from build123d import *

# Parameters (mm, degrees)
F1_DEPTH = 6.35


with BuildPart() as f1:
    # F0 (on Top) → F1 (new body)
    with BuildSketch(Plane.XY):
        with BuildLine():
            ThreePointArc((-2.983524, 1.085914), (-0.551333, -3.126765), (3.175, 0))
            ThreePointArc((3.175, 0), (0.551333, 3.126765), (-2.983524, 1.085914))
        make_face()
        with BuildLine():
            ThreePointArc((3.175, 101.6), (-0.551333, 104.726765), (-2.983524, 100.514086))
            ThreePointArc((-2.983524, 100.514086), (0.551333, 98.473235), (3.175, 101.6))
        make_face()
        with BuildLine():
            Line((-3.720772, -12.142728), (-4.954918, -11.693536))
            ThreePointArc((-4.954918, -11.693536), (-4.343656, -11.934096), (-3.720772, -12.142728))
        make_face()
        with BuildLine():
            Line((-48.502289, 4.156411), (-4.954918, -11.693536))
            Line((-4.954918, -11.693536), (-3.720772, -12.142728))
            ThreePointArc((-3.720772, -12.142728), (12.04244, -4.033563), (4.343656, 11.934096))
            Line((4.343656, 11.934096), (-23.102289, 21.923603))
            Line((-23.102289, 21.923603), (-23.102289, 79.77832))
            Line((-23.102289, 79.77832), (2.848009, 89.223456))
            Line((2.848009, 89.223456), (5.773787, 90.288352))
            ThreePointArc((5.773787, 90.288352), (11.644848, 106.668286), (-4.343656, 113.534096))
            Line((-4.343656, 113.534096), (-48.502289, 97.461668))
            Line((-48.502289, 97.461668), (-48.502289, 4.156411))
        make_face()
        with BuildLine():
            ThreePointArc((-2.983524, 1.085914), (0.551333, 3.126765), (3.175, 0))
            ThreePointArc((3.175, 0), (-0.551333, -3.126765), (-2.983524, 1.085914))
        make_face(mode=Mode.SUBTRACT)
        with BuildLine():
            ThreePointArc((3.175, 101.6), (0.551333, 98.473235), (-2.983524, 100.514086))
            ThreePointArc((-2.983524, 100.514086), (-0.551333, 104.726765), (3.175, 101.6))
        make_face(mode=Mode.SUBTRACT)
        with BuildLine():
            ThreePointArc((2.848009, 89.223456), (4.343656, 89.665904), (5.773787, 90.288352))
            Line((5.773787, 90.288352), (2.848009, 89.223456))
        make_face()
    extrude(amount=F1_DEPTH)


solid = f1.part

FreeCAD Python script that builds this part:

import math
import FreeCAD as App
import Part
import Sketcher

V = App.Vector
Q = App.Units.Quantity

doc = App.newDocument("Part")
body = doc.addObject("PartDesign::Body", "Body")

# Sketch on XY plane
sketch1 = doc.addObject("Sketcher::SketchObject", "Sketch")
body.addObject(sketch1)
sketch1.AttachmentSupport = (doc.XY_Plane, [""])
sketch1.MapMode = "FlatFace"
sketch1.addGeometry(Part.LineSegment(V(-48.5, 4.2, 0), V(-5, -11.7, 0)), False)
sketch1.addGeometry(Part.ArcOfCircle(Part.Circle(V(0, 0, 0), V(0, 0, 1), 12.7), math.radians(-112.96), math.radians(-107.04)), False)
sketch1.addGeometry(Part.ArcOfCircle(Part.Circle(V(0, 0, 0), V(0, 0, 1), 12.7), math.radians(-107), math.radians(70)), False)
sketch1.addGeometry(Part.LineSegment(V(4.3, 11.9, 0), V(-23.1, 21.9, 0)), False)
sketch1.addGeometry(Part.LineSegment(V(-23.1, 21.9, 0), V(-23.1, 79.8, 0)), False)
sketch1.addGeometry(Part.LineSegment(V(-23.1, 79.8, 0), V(2.8, 89.2, 0)), False)
sketch1.addGeometry(Part.ArcOfCircle(Part.Circle(V(0, 101.6, 0), V(0, 0, 1), 12.7), math.radians(-77.04), math.radians(-62.96)), False)
sketch1.addGeometry(Part.ArcOfCircle(Part.Circle(V(0, 101.6, 0), V(0, 0, 1), 12.7), math.radians(-63), math.radians(110)), False)
sketch1.addGeometry(Part.LineSegment(V(-4.3, 113.5, 0), V(-48.5, 97.5, 0)), False)
sketch1.addGeometry(Part.LineSegment(V(-48.5, 97.5, 0), V(-48.5, 4.2, 0)), False)
sketch1.addGeometry(Part.ArcOfCircle(Part.Circle(V(0, 0, 0), V(0, 0, 1), 3.2), math.radians(160), math.radians(360)), False)
sketch1.addGeometry(Part.ArcOfCircle(Part.Circle(V(0, 0, 0), V(0, 0, 1), 3.2), math.radians(0), math.radians(160)), False)
sketch1.addGeometry(Part.ArcOfCircle(Part.Circle(V(0, 101.6, 0), V(0, 0, 1), 3.2), math.radians(0), math.radians(200)), False)
sketch1.addGeometry(Part.ArcOfCircle(Part.Circle(V(0, 101.6, 0), V(0, 0, 1), 3.2), math.radians(-160), math.radians(0)), False)
sketch1.addConstraint(Sketcher.Constraint("Coincident", 0, 2, 1, 1))
sketch1.addConstraint(Sketcher.Constraint("Tangent", 1, 2, 2, 1))
sketch1.addConstraint(Sketcher.Constraint("Tangent", 2, 2, 3, 1))
sketch1.addConstraint(Sketcher.Constraint("Coincident", 3, 2, 4, 1))
sketch1.addConstraint(Sketcher.Constraint("Coincident", 4, 2, 5, 1))
sketch1.addConstraint(Sketcher.Constraint("Coincident", 5, 2, 6, 1))
sketch1.addConstraint(Sketcher.Constraint("Tangent", 6, 2, 7, 1))
sketch1.addConstraint(Sketcher.Constraint("Tangent", 7, 2, 8, 1))
sketch1.addConstraint(Sketcher.Constraint("Coincident", 8, 2, 9, 1))
sketch1.addConstraint(Sketcher.Constraint("Coincident", 9, 2, 0, 1))
sketch1.addConstraint(Sketcher.Constraint("Tangent", 10, 1, 11, 2))
sketch1.addConstraint(Sketcher.Constraint("Coincident", 11, 1, 10, 2))
sketch1.addConstraint(Sketcher.Constraint("Tangent", 12, 1, 13, 2))
sketch1.addConstraint(Sketcher.Constraint("Coincident", 13, 1, 12, 2))
sketch1.addConstraint(Sketcher.Constraint("Vertical", 4))
sketch1.addConstraint(Sketcher.Constraint("Vertical", 9))
sketch1.addConstraint(Sketcher.Constraint("Coincident", 2, 3, -1, 1))
sketch1.addConstraint(Sketcher.Constraint("Coincident", 10, 3, -1, 1))
sketch1.addConstraint(Sketcher.Constraint("Coincident", 12, 3, 6, 3))
sketch1.addConstraint(Sketcher.Constraint("Equal", 2, 7))
sketch1.addConstraint(Sketcher.Constraint("Equal", 11, 12))
sketch1.addConstraint(Sketcher.Constraint("PointOnObject", 7, 3, -2))
sketch1.addConstraint(Sketcher.Constraint("PointOnObject", 12, 3, -2))
sketch1.addConstraint(Sketcher.Constraint("PointOnObject", 11, 1, -1))
sketch1.addConstraint(Sketcher.Constraint("Parallel", 0, 3))
sketch1.addConstraint(Sketcher.Constraint("Parallel", 5, 8))
sketch1.addConstraint(Sketcher.Constraint("Horizontal", 13, 3, 12, 1))
sketch1.addConstraint(Sketcher.Constraint("Vertical", 10, 1, 13, 1))
sketch1.addConstraint(Sketcher.Constraint("Radius", 2, Q("0.5 in")))
sketch1.addConstraint(Sketcher.Constraint("DistanceY", -1, 1, 7, 3, Q("4 in")))
sketch1.addConstraint(Sketcher.Constraint("Angle", 0, Q("-20 deg")))
sketch1.addConstraint(Sketcher.Constraint("Angle", 5, Q("20 deg")))
sketch1.addConstraint(Sketcher.Constraint("Radius", 10, Q("0.125 in")))
sketch1.addConstraint(Sketcher.Constraint("DistanceX", 8, 2, 4, 2, Q("1 in")))
sketch1.addConstraint(Sketcher.Constraint("Radius", 1, 12.69992))
sketch1.addConstraint(Sketcher.Constraint("DistanceX", 4, 2, 5, 2, 25.950298))
sketch1.addConstraint(Sketcher.Constraint("DistanceY", 4, 1, 4, 2, 57.854717))
sketch1.addConstraint(Sketcher.Constraint("DistanceY", 9, 2, 9, 1, 93.305257))
sketch1.addConstraint(Sketcher.Constraint("DistanceY", 1, 2, -1, 1, 12.142728))
sketch1.addConstraint(Sketcher.Constraint("DistanceY", 6, 2, 7, 3, 11.311648))
sketch1.addConstraint(Sketcher.Constraint("DistanceY", 1, 3, 10, 1, 1.085988))
pad1 = doc.addObject("PartDesign::Pad", "Pad")
body.addObject(pad1)
pad1.Profile = sketch1
pad1.Length = Q("0.25 in")

doc.recompute()
